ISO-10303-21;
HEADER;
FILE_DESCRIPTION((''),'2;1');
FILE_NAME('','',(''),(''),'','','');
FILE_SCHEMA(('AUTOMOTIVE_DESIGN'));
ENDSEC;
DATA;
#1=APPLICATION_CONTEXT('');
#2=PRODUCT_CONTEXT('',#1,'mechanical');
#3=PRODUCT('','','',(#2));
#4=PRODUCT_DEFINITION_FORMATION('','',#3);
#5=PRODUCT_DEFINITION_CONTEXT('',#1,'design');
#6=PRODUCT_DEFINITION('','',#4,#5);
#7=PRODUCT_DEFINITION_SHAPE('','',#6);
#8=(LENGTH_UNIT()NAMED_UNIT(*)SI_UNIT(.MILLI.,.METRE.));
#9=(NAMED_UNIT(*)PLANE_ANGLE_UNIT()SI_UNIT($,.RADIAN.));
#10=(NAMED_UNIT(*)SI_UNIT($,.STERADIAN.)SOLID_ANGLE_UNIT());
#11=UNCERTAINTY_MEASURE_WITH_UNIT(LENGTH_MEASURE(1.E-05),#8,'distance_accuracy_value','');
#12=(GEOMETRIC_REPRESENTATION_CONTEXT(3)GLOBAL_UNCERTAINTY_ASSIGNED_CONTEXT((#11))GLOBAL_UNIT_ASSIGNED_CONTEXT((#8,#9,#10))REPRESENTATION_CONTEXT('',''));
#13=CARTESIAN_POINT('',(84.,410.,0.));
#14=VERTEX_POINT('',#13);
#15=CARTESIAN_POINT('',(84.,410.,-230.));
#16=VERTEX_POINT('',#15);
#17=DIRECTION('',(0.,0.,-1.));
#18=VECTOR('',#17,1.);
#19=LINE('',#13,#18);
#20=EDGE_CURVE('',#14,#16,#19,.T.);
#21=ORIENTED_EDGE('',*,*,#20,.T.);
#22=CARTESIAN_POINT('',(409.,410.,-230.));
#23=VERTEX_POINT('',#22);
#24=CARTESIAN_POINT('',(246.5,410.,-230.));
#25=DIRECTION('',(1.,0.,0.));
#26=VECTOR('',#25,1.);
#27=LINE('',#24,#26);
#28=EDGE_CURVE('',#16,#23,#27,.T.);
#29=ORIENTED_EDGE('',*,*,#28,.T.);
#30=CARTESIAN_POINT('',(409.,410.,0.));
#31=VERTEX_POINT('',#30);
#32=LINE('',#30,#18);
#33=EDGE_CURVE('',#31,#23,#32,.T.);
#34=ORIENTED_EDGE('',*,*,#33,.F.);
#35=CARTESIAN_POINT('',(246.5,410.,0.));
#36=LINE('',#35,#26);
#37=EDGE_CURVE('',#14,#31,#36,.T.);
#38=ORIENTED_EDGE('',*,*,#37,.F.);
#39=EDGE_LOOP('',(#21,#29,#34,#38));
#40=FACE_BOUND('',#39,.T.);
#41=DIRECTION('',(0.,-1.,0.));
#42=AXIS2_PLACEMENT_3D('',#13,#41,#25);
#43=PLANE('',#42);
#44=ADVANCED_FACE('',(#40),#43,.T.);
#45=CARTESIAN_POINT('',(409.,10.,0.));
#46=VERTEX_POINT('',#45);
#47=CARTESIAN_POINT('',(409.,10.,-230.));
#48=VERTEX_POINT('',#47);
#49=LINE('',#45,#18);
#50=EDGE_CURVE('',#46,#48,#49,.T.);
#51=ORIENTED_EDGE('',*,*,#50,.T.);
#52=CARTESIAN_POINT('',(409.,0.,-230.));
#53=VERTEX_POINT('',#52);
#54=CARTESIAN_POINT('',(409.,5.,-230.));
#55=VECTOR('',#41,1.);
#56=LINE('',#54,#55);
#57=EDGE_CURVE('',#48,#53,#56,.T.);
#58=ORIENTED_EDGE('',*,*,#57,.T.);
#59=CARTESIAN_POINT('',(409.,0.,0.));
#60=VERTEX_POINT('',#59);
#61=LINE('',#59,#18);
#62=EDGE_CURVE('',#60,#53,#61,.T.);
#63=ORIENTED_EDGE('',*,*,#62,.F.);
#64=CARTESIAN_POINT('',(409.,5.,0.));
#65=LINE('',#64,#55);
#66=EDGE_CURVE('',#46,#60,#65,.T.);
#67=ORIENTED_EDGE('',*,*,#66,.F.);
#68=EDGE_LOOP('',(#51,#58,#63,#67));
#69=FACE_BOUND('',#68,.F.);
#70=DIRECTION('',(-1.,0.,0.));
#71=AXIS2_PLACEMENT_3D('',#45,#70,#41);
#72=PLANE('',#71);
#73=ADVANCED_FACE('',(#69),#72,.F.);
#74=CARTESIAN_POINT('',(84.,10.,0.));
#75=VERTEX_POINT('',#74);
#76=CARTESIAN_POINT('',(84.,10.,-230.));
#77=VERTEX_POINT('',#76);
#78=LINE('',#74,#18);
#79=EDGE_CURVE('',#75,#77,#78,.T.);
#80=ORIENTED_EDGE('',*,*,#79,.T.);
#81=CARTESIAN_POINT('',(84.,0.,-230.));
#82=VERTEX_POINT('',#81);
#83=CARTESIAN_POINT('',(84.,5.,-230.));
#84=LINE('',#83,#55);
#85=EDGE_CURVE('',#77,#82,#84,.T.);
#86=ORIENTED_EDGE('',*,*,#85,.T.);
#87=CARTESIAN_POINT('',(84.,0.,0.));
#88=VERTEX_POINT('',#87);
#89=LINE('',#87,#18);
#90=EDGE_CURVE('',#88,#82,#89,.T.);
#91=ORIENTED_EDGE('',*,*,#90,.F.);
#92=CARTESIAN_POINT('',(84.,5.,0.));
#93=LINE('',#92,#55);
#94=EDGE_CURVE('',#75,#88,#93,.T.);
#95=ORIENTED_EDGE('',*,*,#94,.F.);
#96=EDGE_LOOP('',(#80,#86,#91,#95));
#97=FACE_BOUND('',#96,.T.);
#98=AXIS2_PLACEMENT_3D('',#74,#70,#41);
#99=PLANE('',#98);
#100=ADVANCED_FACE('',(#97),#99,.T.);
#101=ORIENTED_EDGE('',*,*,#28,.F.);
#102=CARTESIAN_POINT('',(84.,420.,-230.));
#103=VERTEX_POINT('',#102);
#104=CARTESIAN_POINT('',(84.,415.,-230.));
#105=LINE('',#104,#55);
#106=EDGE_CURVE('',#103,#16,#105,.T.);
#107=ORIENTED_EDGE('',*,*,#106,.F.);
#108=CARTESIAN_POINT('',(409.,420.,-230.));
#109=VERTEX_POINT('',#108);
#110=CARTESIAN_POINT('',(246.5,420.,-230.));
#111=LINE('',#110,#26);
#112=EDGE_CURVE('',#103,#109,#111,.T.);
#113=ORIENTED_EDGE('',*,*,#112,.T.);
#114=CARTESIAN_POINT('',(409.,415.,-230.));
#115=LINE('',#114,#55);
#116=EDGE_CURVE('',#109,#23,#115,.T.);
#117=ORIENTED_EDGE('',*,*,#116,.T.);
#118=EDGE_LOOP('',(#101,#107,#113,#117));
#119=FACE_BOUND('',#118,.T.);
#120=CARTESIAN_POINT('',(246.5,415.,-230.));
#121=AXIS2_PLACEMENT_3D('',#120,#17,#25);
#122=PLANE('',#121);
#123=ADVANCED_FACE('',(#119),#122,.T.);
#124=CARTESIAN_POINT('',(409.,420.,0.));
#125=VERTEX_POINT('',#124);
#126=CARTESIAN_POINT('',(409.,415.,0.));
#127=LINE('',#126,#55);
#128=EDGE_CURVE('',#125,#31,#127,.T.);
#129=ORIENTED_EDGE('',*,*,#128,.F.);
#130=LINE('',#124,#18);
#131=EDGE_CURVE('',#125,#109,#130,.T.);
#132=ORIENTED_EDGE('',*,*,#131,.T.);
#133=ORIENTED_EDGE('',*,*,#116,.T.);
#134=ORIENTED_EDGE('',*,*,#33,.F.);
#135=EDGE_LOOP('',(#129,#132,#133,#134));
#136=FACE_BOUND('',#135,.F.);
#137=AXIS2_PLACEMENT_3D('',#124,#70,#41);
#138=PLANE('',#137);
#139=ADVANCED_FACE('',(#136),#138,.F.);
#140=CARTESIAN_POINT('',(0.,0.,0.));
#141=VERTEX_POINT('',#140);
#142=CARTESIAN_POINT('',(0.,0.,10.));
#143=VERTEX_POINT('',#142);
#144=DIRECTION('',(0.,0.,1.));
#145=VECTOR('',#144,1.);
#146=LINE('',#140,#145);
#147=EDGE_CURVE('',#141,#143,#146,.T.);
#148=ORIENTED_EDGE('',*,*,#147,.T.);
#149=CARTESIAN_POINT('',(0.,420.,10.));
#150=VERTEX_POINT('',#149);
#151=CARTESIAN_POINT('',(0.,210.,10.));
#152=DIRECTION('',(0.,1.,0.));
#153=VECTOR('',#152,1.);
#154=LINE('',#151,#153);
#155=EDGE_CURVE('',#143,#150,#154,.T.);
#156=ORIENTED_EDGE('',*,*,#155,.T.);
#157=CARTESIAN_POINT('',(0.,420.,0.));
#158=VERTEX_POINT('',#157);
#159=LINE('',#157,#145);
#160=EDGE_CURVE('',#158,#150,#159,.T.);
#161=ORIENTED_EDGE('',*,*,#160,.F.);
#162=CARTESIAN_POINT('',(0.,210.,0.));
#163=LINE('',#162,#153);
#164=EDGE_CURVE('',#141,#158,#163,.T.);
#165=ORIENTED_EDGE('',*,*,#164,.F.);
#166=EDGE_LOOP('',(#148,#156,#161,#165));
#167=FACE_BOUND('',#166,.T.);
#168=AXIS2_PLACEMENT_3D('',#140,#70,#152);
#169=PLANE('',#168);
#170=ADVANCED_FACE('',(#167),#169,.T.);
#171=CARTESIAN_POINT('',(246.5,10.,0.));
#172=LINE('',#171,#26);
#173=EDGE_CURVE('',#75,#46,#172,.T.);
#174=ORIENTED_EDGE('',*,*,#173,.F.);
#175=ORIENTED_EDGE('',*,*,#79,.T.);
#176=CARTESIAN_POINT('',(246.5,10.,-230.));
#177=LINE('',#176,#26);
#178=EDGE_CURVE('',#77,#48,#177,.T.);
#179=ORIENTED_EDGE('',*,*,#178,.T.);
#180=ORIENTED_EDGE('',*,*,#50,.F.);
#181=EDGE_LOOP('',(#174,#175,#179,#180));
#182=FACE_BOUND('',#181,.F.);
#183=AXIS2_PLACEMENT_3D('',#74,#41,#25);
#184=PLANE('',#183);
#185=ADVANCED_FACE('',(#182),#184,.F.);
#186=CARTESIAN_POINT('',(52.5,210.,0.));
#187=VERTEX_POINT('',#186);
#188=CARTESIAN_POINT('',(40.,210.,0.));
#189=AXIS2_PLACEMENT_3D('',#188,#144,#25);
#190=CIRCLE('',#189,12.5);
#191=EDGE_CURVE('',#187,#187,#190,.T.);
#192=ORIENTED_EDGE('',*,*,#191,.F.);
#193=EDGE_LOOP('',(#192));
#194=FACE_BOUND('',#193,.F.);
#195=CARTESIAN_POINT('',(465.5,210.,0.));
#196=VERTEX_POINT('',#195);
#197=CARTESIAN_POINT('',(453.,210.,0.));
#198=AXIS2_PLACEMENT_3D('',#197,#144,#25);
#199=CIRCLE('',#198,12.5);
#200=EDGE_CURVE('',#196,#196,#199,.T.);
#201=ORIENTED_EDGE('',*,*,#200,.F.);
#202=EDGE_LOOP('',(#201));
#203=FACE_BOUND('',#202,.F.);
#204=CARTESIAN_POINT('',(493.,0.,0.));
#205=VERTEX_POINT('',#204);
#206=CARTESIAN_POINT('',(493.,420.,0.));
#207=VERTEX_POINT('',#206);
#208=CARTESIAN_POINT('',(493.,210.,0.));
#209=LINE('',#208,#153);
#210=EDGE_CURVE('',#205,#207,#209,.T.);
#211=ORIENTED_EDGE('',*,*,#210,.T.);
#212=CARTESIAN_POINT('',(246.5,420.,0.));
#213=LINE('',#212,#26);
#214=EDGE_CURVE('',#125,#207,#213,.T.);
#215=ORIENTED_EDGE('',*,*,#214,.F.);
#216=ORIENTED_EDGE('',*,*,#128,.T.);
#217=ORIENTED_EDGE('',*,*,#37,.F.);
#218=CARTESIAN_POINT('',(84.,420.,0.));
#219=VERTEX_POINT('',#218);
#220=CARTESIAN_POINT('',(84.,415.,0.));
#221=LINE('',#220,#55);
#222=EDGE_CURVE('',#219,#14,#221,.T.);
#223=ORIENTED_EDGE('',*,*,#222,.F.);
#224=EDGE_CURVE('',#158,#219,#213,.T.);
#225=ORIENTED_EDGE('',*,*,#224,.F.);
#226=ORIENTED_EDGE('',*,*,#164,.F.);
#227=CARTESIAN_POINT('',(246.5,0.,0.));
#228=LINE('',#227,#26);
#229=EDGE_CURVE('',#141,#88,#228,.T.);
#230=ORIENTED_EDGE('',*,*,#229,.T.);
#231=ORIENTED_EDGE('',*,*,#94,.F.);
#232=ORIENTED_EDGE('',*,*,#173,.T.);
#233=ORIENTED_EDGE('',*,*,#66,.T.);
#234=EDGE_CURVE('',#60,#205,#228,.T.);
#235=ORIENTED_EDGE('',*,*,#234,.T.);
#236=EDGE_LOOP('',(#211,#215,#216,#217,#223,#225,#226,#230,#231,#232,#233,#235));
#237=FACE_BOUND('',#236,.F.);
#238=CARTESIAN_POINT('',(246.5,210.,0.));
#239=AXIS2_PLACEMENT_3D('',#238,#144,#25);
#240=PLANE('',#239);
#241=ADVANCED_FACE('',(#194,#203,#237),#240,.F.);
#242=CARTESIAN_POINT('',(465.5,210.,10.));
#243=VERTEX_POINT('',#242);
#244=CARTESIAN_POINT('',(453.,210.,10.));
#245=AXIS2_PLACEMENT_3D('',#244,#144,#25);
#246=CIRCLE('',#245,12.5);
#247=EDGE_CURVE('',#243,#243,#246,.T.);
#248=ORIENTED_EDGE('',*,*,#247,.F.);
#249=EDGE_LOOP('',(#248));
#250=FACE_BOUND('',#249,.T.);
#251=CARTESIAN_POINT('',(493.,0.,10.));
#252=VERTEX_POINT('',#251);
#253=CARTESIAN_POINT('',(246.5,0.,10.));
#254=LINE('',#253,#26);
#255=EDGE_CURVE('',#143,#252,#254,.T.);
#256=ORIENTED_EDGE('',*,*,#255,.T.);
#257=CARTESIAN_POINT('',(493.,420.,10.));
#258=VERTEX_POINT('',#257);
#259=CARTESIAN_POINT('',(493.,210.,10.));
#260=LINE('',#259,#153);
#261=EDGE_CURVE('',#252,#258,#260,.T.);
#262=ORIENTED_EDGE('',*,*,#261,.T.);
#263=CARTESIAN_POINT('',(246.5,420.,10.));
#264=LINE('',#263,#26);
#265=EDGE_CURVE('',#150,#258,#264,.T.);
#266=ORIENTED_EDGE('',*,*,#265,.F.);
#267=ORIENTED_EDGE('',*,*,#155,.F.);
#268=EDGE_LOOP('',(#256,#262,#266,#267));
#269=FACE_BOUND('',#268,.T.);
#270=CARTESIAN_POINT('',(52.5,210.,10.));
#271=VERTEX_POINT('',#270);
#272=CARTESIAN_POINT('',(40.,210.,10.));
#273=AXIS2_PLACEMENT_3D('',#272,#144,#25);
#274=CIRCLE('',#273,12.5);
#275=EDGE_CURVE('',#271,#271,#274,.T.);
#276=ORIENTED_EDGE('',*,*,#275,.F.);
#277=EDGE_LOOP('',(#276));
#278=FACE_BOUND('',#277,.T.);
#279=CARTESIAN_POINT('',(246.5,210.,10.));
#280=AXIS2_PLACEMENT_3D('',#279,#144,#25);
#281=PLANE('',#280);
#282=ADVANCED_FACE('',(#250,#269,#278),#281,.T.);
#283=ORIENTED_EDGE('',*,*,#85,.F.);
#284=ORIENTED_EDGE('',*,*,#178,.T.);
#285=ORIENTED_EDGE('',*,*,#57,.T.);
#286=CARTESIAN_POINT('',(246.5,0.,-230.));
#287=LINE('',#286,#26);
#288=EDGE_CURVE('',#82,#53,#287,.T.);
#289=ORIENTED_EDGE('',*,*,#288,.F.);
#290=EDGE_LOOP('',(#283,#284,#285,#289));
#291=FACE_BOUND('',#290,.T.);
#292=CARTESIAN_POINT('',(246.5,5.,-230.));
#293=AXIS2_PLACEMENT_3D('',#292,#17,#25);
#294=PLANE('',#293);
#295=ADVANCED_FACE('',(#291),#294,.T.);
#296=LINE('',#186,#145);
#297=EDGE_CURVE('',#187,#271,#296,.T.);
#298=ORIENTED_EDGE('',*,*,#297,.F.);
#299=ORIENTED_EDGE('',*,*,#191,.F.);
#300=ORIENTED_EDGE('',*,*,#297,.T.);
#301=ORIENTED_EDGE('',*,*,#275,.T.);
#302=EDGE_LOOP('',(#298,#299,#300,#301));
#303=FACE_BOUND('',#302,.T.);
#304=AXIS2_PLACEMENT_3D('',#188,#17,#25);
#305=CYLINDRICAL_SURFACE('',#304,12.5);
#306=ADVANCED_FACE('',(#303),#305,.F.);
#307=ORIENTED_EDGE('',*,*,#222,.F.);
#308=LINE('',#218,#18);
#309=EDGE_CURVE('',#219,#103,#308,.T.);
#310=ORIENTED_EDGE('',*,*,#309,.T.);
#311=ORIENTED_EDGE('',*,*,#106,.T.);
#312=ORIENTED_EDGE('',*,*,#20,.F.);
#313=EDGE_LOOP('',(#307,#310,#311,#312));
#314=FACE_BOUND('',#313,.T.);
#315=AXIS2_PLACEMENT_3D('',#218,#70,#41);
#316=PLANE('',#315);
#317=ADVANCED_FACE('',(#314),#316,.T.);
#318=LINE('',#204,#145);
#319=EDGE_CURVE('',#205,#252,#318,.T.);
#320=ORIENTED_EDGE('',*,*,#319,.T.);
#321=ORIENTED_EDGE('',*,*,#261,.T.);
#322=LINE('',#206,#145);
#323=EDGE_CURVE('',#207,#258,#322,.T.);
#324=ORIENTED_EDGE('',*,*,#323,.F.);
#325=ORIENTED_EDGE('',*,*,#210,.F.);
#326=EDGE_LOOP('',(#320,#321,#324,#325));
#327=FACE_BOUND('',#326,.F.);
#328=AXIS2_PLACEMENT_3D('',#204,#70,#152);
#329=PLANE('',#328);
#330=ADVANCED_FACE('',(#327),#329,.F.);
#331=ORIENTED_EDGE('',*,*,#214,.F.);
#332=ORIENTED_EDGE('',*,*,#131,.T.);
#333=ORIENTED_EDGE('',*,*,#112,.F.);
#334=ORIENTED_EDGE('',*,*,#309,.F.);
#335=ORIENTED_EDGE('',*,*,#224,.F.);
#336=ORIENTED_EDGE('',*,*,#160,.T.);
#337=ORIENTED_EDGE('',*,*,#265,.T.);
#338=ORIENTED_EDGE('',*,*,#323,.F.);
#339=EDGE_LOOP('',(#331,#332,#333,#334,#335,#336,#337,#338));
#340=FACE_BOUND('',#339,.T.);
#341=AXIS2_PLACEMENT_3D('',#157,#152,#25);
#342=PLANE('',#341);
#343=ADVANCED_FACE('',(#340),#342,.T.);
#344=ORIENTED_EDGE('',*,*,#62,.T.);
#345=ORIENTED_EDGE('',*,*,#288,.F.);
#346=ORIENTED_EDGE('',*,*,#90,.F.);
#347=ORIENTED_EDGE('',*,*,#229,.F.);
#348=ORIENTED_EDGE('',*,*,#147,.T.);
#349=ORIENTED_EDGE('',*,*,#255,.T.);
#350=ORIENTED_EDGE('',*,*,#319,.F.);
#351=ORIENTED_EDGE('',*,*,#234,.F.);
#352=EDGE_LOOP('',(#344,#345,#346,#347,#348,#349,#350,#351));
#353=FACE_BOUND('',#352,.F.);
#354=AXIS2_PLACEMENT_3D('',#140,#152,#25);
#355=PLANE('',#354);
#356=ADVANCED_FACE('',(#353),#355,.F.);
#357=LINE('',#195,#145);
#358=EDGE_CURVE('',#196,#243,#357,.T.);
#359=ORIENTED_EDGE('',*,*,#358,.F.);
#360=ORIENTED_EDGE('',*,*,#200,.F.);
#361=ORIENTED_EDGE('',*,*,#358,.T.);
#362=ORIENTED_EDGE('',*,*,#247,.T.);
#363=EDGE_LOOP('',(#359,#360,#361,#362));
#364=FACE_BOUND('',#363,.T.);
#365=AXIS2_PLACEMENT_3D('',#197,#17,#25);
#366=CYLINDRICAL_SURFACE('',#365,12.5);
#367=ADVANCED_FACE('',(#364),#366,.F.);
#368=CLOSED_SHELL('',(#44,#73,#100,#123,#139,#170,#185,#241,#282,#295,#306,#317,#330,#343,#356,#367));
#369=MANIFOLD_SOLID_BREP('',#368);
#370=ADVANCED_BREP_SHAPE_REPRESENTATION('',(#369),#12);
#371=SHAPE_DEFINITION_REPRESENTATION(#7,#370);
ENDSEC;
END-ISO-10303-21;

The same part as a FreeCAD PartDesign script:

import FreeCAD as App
import Part
import Sketcher

V = App.Vector

doc = App.newDocument("Part")
body = doc.addObject("PartDesign::Body", "Body")

# Sketch on XY plane
sketch1 = body.newObject("Sketcher::SketchObject", "Sketch")
sketch1.AttachmentSupport = (doc.getObject("XY_Plane"), [""])
sketch1.MapMode = "FlatFace"
sketch1.addGeometry([
    Part.LineSegment(V(0, 420, 0), V(0, 0, 0)),  # 0
    Part.LineSegment(V(0, 0, 0), V(493, 0, 0)),  # 1
    Part.LineSegment(V(493, 0, 0), V(493, 420, 0)),  # 2
    Part.LineSegment(V(493, 420, 0), V(0, 420, 0)),  # 3
    Part.Circle(V(40, 210, 0), V(0, 0, 1), 12),  # 4
    Part.Circle(V(453, 210, 0), V(0, 0, 1), 12),  # 5
], False)
sketch1.addConstraint([
    Sketcher.Constraint("Coincident", 0, 2, 1, 1),
    Sketcher.Constraint("Coincident", 1, 2, 2, 1),
    Sketcher.Constraint("Coincident", 2, 2, 3, 1),
    Sketcher.Constraint("Coincident", 3, 2, 0, 1),
    Sketcher.Constraint("Vertical", 0),
    Sketcher.Constraint("Horizontal", 1),
    Sketcher.Constraint("Vertical", 2),
    Sketcher.Constraint("Horizontal", 3),
    Sketcher.Constraint("Coincident", 0, 2, -1, 1),
    Sketcher.Constraint("Equal", 4, 5),
    Sketcher.Constraint("Horizontal", 4, 3, 5, 3),
    Sketcher.Constraint("Diameter", 4, 25.0),
    Sketcher.Constraint("DistanceX", 1, 1, 1, 2, 493.0),
    Sketcher.Constraint("DistanceY", 0, 2, 0, 1, 420.0),
    Sketcher.Constraint("DistanceX", -1, 1, 4, 3, 40.0),
    Sketcher.Constraint("DistanceY", -1, 1, 4, 3, 210.0),
    Sketcher.Constraint("DistanceX", -1, 1, 5, 3, 453.0),
])
pad1 = body.newObject("PartDesign::Pad", "Pad")
pad1.Profile = sketch1
pad1.Length = 10

# Sketch on XY plane
sketch2 = body.newObject("Sketcher::SketchObject", "Sketch001")
sketch2.AttachmentSupport = (doc.getObject("XY_Plane"), [""])
sketch2.MapMode = "FlatFace"
sketch2.addGeometry([
    Part.LineSegment(V(84, 0, 0), V(84, 10, 0)),  # 0
    Part.LineSegment(V(84, 10, 0), V(409, 10, 0)),  # 1
    Part.LineSegment(V(409, 10, 0), V(409, 0, 0)),  # 2
    Part.LineSegment(V(409, 0, 0), V(84, 0, 0)),  # 3
    Part.LineSegment(V(84, 410, 0), V(84, 420, 0)),  # 4
    Part.LineSegment(V(84, 420, 0), V(409, 420, 0)),  # 5
    Part.LineSegment(V(409, 420, 0), V(409, 410, 0)),  # 6
    Part.LineSegment(V(409, 410, 0), V(84, 410, 0)),  # 7
], False)
sketch2.addConstraint([
    Sketcher.Constraint("Coincident", 0, 2, 1, 1),
    Sketcher.Constraint("Coincident", 1, 2, 2, 1),
    Sketcher.Constraint("Coincident", 2, 2, 3, 1),
    Sketcher.Constraint("Coincident", 3, 2, 0, 1),
    Sketcher.Constraint("Coincident", 4, 2, 5, 1),
    Sketcher.Constraint("Coincident", 5, 2, 6, 1),
    Sketcher.Constraint("Coincident", 6, 2, 7, 1),
    Sketcher.Constraint("Coincident", 7, 2, 4, 1),
    Sketcher.Constraint("Vertical", 0),
    Sketcher.Constraint("Horizontal", 1),
    Sketcher.Constraint("Vertical", 2),
    Sketcher.Constraint("Horizontal", 3),
    Sketcher.Constraint("Vertical", 4),
    Sketcher.Constraint("Horizontal", 5),
    Sketcher.Constraint("Vertical", 6),
    Sketcher.Constraint("Horizontal", 7),
    Sketcher.Constraint("PointOnObject", 2, 2, -1),
    Sketcher.Constraint("Vertical", 3, 2, 4, 2),
    Sketcher.Constraint("Vertical", 2, 2, 5, 2),
    Sketcher.Constraint("Equal", 2, 4),
    Sketcher.Constraint("DistanceX", 1, 1, 1, 2, 325.0),
    Sketcher.Constraint("DistanceY", 0, 1, 0, 2, 10.0),
    Sketcher.Constraint("DistanceX", -1, 1, 0, 2, 84.0),
    Sketcher.Constraint("DistanceY", -1, 1, 4, 2, 420.0),
])
pad2 = body.newObject("PartDesign::Pad", "Pad001")
pad2.Profile = sketch2
pad2.Length = 230
pad2.Reversed = True

doc.recompute()
